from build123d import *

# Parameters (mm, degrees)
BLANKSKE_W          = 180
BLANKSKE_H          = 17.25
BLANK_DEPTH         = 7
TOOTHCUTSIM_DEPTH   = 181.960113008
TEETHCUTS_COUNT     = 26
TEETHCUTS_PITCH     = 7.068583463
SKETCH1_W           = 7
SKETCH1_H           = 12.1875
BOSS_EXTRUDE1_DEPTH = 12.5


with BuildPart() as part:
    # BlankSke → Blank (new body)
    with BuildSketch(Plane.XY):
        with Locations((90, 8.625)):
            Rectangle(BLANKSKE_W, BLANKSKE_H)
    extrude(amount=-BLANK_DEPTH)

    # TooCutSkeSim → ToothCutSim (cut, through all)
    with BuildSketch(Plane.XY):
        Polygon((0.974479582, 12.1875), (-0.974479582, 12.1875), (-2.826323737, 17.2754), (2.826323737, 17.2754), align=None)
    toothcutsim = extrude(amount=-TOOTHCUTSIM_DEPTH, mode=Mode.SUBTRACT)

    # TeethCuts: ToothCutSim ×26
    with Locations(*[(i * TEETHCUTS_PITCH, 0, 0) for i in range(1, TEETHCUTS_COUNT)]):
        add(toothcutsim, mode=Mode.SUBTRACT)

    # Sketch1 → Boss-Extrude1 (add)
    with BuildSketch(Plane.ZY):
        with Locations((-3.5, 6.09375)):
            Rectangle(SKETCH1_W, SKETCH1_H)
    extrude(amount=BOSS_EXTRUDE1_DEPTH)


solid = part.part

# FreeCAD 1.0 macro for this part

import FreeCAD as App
import Part
import Sketcher

V = App.Vector
Q = App.Units.Quantity


def add_polygon(sketch, points):
    """Adds a closed chain of lines whose ends are joined by coincident constraints."""
    first, n = sketch.GeometryCount, len(points)
    for a, b in zip(points, points[1:] + points[:1]):
        sketch.addGeometry(Part.LineSegment(App.Vector(*a, 0), App.Vector(*b, 0)), False)
    for i in range(n):
        sketch.addConstraint(Sketcher.Constraint("Coincident", first + i, 2, first + (i + 1) % n, 1))

doc = App.newDocument("Part")
body = doc.addObject("PartDesign::Body", "Body")

sketch1 = body.newObject("Sketcher::SketchObject", "Sketch")
sketch1.AttachmentSupport = (doc.getObject("XY_Plane"), [""])
sketch1.MapMode = "FlatFace"
add_polygon(sketch1, [(0, 17.25), (0, 0), (180, 0), (180, 17.25)])
sketch1.addConstraint([
    Sketcher.Constraint("Vertical", 0),
    Sketcher.Constraint("Horizontal", 1),
    Sketcher.Constraint("Vertical", 2),
    Sketcher.Constraint("Horizontal", 3),
    Sketcher.Constraint("Coincident", 0, 2, -1, 1),
    Sketcher.Constraint("DistanceX", 1, 1, 1, 2, 180.0),
    Sketcher.Constraint("DistanceY", 0, 2, 0, 1, 17.25),
])
pad1 = body.newObject("PartDesign::Pad", "Pad")
pad1.Profile = sketch1
pad1.Length = 7
pad1.Reversed = True

sketch2 = body.newObject("Sketcher::SketchObject", "Sketch001")
sketch2.AttachmentSupport = (doc.getObject("XY_Plane"), [""])
sketch2.MapMode = "FlatFace"
add_polygon(sketch2, [(-0.97448, 12.1875), (0.97448, 12.1875), (2.826324, 17.2754), (-2.826324, 17.2754)])
sketch2.addConstraint([
    Sketcher.Constraint("Horizontal", 0),
    Sketcher.Constraint("Horizontal", 2),
    Sketcher.Constraint("Equal", 1, 3),
    Sketcher.Constraint("Angle", 1, Q("70 deg")),
    Sketcher.Constraint("DistanceX", 0, 1, 0, 2, 1.948959),
    Sketcher.Constraint("DistanceY", -1, 1, 0, 2, 12.1875),
    Sketcher.Constraint("DistanceY", -1, 1, 1, 2, 17.2754),
    Sketcher.Constraint("DistanceX", -1, 1, 0, 2, 0.97448),
])
pocket1 = body.newObject("PartDesign::Pocket", "Pocket")
pocket1.Profile = sketch2
pocket1.Type = "ThroughAll"
doc.recompute()

linearpattern = body.newObject("PartDesign::LinearPattern", "LinearPattern")
linearpattern.Originals = [pocket1]
linearpattern.Direction = (doc.getObject("X_Axis"), [""])
linearpattern.Mode = "offset"
linearpattern.Offset = 7.068583
linearpattern.Occurrences = 26
body.Tip = linearpattern

sketch3 = body.newObject("Sketcher::SketchObject", "Sketch002")
sketch3.AttachmentSupport = (doc.getObject("YZ_Plane"), [""])
sketch3.MapMode = "FlatFace"
add_polygon(sketch3, [(12.1875, -7), (0, -7), (0, 0), (12.1875, 0)])
sketch3.addConstraint([
    Sketcher.Constraint("Horizontal", 0),
    Sketcher.Constraint("Vertical", 1),
    Sketcher.Constraint("Horizontal", 2),
    Sketcher.Constraint("Vertical", 3),
    Sketcher.Constraint("Coincident", 1, 2, -1, 1),
    Sketcher.Constraint("DistanceY", 1, 1, 1, 2, 7.0),
    Sketcher.Constraint("DistanceX", 0, 2, 0, 1, 12.1875),
])
pad2 = body.newObject("PartDesign::Pad", "Pad001")
pad2.Profile = sketch3
pad2.Length = 12.5
pad2.Reversed = True

doc.recompute()
